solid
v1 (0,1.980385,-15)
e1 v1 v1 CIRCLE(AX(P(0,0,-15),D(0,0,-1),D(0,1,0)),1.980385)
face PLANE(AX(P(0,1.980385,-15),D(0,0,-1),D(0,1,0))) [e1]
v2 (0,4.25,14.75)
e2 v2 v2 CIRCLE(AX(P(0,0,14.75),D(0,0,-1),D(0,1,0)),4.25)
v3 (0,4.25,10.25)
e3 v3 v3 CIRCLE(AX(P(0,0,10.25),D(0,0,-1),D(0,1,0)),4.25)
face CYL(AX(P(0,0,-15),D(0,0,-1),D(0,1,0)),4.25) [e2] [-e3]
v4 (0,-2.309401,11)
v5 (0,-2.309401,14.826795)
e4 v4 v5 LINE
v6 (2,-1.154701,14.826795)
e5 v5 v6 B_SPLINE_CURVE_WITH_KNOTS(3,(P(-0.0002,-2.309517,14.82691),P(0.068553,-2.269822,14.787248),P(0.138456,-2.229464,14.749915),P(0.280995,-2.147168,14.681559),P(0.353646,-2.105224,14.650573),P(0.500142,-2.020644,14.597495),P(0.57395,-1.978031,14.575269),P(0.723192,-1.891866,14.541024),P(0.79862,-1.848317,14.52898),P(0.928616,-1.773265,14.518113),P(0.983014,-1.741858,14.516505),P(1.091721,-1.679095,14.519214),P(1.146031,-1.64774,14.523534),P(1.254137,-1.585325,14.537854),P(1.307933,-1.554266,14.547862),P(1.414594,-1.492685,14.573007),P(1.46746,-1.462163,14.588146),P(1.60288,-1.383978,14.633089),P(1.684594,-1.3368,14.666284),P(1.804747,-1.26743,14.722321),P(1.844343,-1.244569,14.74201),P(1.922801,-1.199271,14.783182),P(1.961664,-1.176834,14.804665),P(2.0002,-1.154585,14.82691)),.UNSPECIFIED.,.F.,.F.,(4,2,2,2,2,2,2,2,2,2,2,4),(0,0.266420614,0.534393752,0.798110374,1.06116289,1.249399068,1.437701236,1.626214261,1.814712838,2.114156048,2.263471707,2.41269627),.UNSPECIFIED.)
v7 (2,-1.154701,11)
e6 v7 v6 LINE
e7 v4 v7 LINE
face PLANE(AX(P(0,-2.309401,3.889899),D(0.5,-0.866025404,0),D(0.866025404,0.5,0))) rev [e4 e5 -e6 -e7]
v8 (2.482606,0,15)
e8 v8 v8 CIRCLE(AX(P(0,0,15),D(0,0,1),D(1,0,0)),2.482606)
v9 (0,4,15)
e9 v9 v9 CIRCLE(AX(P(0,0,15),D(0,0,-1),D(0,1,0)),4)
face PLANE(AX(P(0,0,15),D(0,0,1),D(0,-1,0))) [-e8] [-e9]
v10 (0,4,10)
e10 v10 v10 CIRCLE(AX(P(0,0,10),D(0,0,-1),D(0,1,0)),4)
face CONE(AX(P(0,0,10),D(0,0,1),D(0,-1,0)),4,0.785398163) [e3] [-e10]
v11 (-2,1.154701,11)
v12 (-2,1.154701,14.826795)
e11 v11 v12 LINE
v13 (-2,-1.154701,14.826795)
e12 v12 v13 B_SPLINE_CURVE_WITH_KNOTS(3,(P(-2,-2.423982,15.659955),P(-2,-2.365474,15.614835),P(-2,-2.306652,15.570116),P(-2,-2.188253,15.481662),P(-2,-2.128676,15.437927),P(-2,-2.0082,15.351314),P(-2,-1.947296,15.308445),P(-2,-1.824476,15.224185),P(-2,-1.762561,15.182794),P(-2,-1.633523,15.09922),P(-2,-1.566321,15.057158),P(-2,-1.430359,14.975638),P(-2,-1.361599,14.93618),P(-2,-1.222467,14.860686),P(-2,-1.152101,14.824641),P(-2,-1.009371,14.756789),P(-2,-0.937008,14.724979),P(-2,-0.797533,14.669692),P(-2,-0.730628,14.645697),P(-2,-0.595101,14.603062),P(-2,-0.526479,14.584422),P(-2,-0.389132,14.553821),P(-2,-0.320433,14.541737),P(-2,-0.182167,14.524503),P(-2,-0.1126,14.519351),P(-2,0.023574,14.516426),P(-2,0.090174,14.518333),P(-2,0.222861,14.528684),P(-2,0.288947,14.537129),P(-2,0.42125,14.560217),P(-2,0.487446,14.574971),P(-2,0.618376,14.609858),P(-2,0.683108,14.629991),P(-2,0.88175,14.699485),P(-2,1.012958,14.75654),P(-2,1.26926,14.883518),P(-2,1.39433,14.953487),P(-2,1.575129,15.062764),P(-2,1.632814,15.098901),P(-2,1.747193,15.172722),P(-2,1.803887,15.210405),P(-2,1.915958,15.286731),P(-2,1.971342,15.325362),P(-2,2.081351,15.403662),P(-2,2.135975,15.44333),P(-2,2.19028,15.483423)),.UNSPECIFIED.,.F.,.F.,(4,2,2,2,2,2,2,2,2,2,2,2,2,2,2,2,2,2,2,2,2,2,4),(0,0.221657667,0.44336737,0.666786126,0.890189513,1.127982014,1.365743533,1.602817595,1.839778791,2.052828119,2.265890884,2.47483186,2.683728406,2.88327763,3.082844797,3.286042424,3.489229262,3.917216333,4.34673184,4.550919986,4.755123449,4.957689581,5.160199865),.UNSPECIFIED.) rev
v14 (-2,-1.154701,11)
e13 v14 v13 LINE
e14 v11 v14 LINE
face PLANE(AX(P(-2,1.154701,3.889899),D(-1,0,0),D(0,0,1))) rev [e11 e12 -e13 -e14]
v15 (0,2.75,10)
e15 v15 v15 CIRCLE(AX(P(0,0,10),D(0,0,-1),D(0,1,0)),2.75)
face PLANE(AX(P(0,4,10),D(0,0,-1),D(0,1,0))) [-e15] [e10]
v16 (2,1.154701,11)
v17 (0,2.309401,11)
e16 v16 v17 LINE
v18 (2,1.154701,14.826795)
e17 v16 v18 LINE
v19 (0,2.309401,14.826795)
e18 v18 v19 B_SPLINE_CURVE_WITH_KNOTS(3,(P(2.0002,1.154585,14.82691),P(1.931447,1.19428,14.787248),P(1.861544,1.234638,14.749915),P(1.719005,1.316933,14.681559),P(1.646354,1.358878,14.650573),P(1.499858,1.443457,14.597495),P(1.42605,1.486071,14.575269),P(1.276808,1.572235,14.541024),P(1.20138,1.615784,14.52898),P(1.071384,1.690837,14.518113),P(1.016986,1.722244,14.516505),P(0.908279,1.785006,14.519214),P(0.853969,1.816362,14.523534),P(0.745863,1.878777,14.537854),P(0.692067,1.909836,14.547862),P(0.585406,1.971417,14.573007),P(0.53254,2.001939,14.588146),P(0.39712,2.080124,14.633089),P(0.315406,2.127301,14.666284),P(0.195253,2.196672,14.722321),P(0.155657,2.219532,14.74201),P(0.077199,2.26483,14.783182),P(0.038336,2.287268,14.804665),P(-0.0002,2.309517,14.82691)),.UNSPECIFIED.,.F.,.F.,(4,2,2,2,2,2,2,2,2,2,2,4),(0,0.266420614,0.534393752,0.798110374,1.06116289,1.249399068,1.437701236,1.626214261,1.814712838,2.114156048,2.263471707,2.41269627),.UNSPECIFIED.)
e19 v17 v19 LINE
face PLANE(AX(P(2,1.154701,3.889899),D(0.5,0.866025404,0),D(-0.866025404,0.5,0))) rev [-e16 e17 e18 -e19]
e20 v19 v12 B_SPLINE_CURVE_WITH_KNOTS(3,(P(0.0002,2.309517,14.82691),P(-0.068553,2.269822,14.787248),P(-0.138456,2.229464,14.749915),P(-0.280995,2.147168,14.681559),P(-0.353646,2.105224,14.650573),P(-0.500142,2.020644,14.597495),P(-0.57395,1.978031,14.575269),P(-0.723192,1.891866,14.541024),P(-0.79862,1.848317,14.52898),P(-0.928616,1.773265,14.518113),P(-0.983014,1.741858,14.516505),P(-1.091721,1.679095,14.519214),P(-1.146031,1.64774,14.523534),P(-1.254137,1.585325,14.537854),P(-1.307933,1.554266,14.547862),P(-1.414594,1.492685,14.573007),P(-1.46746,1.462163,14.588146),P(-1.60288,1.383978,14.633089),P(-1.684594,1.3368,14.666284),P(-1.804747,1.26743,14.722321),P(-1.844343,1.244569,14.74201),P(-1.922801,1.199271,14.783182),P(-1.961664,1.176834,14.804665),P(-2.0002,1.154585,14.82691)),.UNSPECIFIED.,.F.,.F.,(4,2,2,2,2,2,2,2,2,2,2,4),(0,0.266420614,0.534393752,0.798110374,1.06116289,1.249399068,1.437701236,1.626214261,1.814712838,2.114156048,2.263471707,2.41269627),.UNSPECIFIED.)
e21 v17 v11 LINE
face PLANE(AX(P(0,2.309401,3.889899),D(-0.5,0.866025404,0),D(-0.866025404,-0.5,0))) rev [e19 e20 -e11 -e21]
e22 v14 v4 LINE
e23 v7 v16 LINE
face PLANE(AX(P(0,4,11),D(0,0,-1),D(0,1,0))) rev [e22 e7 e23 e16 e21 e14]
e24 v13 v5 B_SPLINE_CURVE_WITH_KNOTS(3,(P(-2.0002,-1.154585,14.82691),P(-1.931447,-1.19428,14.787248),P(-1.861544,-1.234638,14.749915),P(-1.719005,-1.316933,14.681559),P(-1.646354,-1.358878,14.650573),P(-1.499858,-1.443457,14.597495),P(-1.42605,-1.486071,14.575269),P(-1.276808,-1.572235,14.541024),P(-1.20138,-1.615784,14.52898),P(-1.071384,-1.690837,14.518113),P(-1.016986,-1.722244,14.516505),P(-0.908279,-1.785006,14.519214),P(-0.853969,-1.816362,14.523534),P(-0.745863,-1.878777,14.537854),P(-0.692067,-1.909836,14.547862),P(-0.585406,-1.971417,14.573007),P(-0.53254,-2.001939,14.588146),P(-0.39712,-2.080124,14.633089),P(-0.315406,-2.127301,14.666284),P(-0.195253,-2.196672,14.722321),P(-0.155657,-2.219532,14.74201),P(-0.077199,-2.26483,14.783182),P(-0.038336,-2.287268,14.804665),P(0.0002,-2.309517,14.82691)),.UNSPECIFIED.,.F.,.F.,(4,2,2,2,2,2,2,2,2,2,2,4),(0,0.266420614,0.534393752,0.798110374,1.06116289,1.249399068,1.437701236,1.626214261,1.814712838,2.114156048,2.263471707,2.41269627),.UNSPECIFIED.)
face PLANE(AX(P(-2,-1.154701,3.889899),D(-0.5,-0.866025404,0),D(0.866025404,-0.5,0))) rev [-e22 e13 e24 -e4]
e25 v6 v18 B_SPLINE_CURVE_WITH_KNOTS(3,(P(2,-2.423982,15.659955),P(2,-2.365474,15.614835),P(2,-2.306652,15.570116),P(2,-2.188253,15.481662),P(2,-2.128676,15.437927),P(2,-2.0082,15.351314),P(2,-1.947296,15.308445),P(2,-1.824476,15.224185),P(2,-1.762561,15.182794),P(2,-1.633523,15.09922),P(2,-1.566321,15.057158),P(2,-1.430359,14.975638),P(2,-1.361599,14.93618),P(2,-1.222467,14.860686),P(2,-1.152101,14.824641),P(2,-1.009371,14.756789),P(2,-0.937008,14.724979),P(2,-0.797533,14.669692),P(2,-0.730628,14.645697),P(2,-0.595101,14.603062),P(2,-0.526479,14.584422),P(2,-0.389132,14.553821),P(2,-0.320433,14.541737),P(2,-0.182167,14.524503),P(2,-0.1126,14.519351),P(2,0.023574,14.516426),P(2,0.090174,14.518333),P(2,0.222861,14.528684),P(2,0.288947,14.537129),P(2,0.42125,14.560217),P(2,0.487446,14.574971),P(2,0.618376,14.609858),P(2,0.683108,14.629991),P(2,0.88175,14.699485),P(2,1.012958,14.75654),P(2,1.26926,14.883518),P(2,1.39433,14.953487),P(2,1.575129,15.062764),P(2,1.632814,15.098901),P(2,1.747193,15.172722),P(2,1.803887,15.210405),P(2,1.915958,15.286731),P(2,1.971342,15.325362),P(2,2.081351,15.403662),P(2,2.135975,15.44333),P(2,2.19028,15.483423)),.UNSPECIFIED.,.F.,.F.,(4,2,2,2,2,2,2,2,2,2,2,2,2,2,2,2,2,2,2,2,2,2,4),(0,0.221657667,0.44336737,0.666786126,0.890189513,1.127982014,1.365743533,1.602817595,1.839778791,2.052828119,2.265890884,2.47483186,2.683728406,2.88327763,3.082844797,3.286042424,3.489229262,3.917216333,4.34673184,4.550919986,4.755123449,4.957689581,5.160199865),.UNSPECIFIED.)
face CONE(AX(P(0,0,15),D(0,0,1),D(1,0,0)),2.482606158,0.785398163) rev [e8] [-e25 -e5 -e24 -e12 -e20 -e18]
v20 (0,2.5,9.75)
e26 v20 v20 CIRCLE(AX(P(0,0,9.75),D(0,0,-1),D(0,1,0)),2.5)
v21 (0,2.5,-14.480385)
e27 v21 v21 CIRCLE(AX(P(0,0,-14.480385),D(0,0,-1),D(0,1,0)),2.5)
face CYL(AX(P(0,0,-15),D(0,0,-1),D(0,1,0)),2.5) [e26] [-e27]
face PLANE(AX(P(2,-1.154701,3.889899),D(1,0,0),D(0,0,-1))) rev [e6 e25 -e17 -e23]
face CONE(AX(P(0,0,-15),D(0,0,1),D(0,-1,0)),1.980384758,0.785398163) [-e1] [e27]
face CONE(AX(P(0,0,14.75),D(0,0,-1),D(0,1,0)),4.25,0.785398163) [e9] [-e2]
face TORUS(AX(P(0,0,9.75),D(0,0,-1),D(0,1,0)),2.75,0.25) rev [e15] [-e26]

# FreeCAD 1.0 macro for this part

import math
import FreeCAD as App
import Part
import Sketcher

V = App.Vector
Q = App.Units.Quantity


def add_polygon(sketch, points):
    """Adds a closed chain of lines whose ends are joined by coincident constraints."""
    first, n = sketch.GeometryCount, len(points)
    for a, b in zip(points, points[1:] + points[:1]):
        sketch.addGeometry(Part.LineSegment(App.Vector(*a, 0), App.Vector(*b, 0)), False)
    for i in range(n):
        sketch.addConstraint(Sketcher.Constraint("Coincident", first + i, 2, first + (i + 1) % n, 1))

doc = App.newDocument("Part")
body = doc.addObject("PartDesign::Body", "Body")

sketch1 = doc.addObject("Sketcher::SketchObject", "Sketch")
body.addObject(sketch1)
sketch1.AttachmentSupport = (doc.YZ_Plane, [""])
sketch1.MapMode = "FlatFace"
sketch1.addGeometry(Part.LineSegment(V(4, 15, 0), V(0, 15, 0)), False)
sketch1.addGeometry(Part.LineSegment(V(0, 15, 0), V(0, -15, 0)), False)
sketch1.addGeometry(Part.LineSegment(V(0, -15, 0), V(1.980385, -15, 0)), False)
sketch1.addGeometry(Part.LineSegment(V(1.980385, -15, 0), V(2.5, -14.480385, 0)), False)
sketch1.addGeometry(Part.LineSegment(V(2.5, -14.480385, 0), V(2.5, 9.75, 0)), False)
sketch1.addGeometry(Part.ArcOfCircle(Part.Circle(V(2.75, 9.75, 0), V(0, 0, 1), 0.25), math.radians(90), math.radians(180)), False)
sketch1.addGeometry(Part.LineSegment(V(2.75, 10, 0), V(4, 10, 0)), False)
sketch1.addGeometry(Part.LineSegment(V(4, 10, 0), V(4.25, 10.25, 0)), False)
sketch1.addGeometry(Part.LineSegment(V(4.25, 10.25, 0), V(4.25, 14.75, 0)), False)
sketch1.addGeometry(Part.LineSegment(V(4.25, 14.75, 0), V(4, 15, 0)), False)
sketch1.addConstraint(Sketcher.Constraint("Coincident", 0, 2, 1, 1))
sketch1.addConstraint(Sketcher.Constraint("Coincident", 1, 2, 2, 1))
sketch1.addConstraint(Sketcher.Constraint("Coincident", 2, 2, 3, 1))
sketch1.addConstraint(Sketcher.Constraint("Coincident", 3, 2, 4, 1))
sketch1.addConstraint(Sketcher.Constraint("Tangent", 4, 2, 5, 2))
sketch1.addConstraint(Sketcher.Constraint("Tangent", 5, 1, 6, 1))
sketch1.addConstraint(Sketcher.Constraint("Coincident", 6, 2, 7, 1))
sketch1.addConstraint(Sketcher.Constraint("Coincident", 7, 2, 8, 1))
sketch1.addConstraint(Sketcher.Constraint("Coincident", 8, 2, 9, 1))
sketch1.addConstraint(Sketcher.Constraint("Coincident", 9, 2, 0, 1))
sketch1.addConstraint(Sketcher.Constraint("Horizontal", 0))
sketch1.addConstraint(Sketcher.Constraint("Vertical", 1))
sketch1.addConstraint(Sketcher.Constraint("Horizontal", 2))
sketch1.addConstraint(Sketcher.Constraint("Vertical", 4))
sketch1.addConstraint(Sketcher.Constraint("Horizontal", 6))
sketch1.addConstraint(Sketcher.Constraint("Vertical", 8))
sketch1.addConstraint(Sketcher.Constraint("Symmetric", 0, 2, 1, 2, -1, 1))
sketch1.addConstraint(Sketcher.Constraint("Parallel", 3, 7))
sketch1.addConstraint(Sketcher.Constraint("Perpendicular", 7, 9))
sketch1.addConstraint(Sketcher.Constraint("Vertical", 6, 2, 9, 2))
sketch1.addConstraint(Sketcher.Constraint("Equal", 7, 9))
sketch1.addConstraint(Sketcher.Constraint("DistanceX", 0, 2, 0, 1, Q("4 mm")))
sketch1.addConstraint(Sketcher.Constraint("DistanceY", 1, 2, 1, 1, Q("30 mm")))
sketch1.addConstraint(Sketcher.Constraint("Radius", 5, Q("0.25 mm")))
sketch1.addConstraint(Sketcher.Constraint("DistanceY", 8, 1, 8, 2, Q("4.5 mm")))
sketch1.addConstraint(Sketcher.Constraint("DistanceY", -1, 1, 5, 1, Q("10 mm")))
sketch1.addConstraint(Sketcher.Constraint("DistanceX", 6, 1, 6, 2, Q("1.25 mm")))
sketch1.addConstraint(Sketcher.Constraint("DistanceX", 2, 1, 2, 2, Q("1.980385 mm")))
revolution = doc.addObject("PartDesign::Revolution", "Revolution")
body.addObject(revolution)
revolution.Profile = sketch1
revolution.ReferenceAxis = (sketch1, ["V_Axis"])
revolution.Angle = 360

sketch2 = doc.addObject("Sketcher::SketchObject", "Sketch001")
body.addObject(sketch2)
sketch2.AttachmentSupport = (doc.XY_Plane, [""])
sketch2.MapMode = "FlatFace"
sketch2.AttachmentOffset = App.Placement(V(0, 0, 15), App.Rotation())
add_polygon(sketch2, [(2, -1.154701), (2, 1.154701), (0, 2.309401), (-2, 1.154701), (-2, -1.154701), (0, -2.309401)])
sketch2.addConstraint(Sketcher.Constraint("Vertical", 0))
sketch2.addConstraint(Sketcher.Constraint("Vertical", 3))
sketch2.addConstraint(Sketcher.Constraint("Symmetric", 0, 2, 3, 2, -1, 1))
sketch2.addConstraint(Sketcher.Constraint("Symmetric", 1, 2, 4, 2, -1, 1))
sketch2.addConstraint(Sketcher.Constraint("PointOnObject", 1, 2, -2))
sketch2.addConstraint(Sketcher.Constraint("Parallel", 2, 5))
sketch2.addConstraint(Sketcher.Constraint("Horizontal", 0, 2, 2, 2))
sketch2.addConstraint(Sketcher.Constraint("Angle", 1, Q("150 deg")))
sketch2.addConstraint(Sketcher.Constraint("DistanceX", -1, 1, 0, 2, Q("2 mm")))
sketch2.addConstraint(Sketcher.Constraint("DistanceY", 0, 1, 0, 2, Q("2.309401 mm")))
pocket1 = doc.addObject("PartDesign::Pocket", "Pocket")
body.addObject(pocket1)
pocket1.Profile = sketch2
pocket1.Length = 4

sketch3 = doc.addObject("Sketcher::SketchObject", "Sketch002")
body.addObject(sketch3)
sketch3.AttachmentSupport = (doc.YZ_Plane, [""])
sketch3.MapMode = "FlatFace"
add_polygon(sketch3, [(0, 15), (-2.482606, 15), (0, 12.517394)])
sketch3.addConstraint(Sketcher.Constraint("Horizontal", 0))
sketch3.addConstraint(Sketcher.Constraint("Vertical", 2))
sketch3.addConstraint(Sketcher.Constraint("PointOnObject", 1, 2, -2))
sketch3.addConstraint(Sketcher.Constraint("Equal", 0, 2))
sketch3.addConstraint(Sketcher.Constraint("DistanceY", -1, 1, 0, 2, Q("15 mm")))
sketch3.addConstraint(Sketcher.Constraint("DistanceX", 0, 2, 0, 1, Q("2.482606 mm")))
groove = doc.addObject("PartDesign::Groove", "Groove")
body.addObject(groove)
groove.Profile = sketch3
groove.ReferenceAxis = (sketch3, ["V_Axis"])
groove.Angle = 360

doc.recompute()
